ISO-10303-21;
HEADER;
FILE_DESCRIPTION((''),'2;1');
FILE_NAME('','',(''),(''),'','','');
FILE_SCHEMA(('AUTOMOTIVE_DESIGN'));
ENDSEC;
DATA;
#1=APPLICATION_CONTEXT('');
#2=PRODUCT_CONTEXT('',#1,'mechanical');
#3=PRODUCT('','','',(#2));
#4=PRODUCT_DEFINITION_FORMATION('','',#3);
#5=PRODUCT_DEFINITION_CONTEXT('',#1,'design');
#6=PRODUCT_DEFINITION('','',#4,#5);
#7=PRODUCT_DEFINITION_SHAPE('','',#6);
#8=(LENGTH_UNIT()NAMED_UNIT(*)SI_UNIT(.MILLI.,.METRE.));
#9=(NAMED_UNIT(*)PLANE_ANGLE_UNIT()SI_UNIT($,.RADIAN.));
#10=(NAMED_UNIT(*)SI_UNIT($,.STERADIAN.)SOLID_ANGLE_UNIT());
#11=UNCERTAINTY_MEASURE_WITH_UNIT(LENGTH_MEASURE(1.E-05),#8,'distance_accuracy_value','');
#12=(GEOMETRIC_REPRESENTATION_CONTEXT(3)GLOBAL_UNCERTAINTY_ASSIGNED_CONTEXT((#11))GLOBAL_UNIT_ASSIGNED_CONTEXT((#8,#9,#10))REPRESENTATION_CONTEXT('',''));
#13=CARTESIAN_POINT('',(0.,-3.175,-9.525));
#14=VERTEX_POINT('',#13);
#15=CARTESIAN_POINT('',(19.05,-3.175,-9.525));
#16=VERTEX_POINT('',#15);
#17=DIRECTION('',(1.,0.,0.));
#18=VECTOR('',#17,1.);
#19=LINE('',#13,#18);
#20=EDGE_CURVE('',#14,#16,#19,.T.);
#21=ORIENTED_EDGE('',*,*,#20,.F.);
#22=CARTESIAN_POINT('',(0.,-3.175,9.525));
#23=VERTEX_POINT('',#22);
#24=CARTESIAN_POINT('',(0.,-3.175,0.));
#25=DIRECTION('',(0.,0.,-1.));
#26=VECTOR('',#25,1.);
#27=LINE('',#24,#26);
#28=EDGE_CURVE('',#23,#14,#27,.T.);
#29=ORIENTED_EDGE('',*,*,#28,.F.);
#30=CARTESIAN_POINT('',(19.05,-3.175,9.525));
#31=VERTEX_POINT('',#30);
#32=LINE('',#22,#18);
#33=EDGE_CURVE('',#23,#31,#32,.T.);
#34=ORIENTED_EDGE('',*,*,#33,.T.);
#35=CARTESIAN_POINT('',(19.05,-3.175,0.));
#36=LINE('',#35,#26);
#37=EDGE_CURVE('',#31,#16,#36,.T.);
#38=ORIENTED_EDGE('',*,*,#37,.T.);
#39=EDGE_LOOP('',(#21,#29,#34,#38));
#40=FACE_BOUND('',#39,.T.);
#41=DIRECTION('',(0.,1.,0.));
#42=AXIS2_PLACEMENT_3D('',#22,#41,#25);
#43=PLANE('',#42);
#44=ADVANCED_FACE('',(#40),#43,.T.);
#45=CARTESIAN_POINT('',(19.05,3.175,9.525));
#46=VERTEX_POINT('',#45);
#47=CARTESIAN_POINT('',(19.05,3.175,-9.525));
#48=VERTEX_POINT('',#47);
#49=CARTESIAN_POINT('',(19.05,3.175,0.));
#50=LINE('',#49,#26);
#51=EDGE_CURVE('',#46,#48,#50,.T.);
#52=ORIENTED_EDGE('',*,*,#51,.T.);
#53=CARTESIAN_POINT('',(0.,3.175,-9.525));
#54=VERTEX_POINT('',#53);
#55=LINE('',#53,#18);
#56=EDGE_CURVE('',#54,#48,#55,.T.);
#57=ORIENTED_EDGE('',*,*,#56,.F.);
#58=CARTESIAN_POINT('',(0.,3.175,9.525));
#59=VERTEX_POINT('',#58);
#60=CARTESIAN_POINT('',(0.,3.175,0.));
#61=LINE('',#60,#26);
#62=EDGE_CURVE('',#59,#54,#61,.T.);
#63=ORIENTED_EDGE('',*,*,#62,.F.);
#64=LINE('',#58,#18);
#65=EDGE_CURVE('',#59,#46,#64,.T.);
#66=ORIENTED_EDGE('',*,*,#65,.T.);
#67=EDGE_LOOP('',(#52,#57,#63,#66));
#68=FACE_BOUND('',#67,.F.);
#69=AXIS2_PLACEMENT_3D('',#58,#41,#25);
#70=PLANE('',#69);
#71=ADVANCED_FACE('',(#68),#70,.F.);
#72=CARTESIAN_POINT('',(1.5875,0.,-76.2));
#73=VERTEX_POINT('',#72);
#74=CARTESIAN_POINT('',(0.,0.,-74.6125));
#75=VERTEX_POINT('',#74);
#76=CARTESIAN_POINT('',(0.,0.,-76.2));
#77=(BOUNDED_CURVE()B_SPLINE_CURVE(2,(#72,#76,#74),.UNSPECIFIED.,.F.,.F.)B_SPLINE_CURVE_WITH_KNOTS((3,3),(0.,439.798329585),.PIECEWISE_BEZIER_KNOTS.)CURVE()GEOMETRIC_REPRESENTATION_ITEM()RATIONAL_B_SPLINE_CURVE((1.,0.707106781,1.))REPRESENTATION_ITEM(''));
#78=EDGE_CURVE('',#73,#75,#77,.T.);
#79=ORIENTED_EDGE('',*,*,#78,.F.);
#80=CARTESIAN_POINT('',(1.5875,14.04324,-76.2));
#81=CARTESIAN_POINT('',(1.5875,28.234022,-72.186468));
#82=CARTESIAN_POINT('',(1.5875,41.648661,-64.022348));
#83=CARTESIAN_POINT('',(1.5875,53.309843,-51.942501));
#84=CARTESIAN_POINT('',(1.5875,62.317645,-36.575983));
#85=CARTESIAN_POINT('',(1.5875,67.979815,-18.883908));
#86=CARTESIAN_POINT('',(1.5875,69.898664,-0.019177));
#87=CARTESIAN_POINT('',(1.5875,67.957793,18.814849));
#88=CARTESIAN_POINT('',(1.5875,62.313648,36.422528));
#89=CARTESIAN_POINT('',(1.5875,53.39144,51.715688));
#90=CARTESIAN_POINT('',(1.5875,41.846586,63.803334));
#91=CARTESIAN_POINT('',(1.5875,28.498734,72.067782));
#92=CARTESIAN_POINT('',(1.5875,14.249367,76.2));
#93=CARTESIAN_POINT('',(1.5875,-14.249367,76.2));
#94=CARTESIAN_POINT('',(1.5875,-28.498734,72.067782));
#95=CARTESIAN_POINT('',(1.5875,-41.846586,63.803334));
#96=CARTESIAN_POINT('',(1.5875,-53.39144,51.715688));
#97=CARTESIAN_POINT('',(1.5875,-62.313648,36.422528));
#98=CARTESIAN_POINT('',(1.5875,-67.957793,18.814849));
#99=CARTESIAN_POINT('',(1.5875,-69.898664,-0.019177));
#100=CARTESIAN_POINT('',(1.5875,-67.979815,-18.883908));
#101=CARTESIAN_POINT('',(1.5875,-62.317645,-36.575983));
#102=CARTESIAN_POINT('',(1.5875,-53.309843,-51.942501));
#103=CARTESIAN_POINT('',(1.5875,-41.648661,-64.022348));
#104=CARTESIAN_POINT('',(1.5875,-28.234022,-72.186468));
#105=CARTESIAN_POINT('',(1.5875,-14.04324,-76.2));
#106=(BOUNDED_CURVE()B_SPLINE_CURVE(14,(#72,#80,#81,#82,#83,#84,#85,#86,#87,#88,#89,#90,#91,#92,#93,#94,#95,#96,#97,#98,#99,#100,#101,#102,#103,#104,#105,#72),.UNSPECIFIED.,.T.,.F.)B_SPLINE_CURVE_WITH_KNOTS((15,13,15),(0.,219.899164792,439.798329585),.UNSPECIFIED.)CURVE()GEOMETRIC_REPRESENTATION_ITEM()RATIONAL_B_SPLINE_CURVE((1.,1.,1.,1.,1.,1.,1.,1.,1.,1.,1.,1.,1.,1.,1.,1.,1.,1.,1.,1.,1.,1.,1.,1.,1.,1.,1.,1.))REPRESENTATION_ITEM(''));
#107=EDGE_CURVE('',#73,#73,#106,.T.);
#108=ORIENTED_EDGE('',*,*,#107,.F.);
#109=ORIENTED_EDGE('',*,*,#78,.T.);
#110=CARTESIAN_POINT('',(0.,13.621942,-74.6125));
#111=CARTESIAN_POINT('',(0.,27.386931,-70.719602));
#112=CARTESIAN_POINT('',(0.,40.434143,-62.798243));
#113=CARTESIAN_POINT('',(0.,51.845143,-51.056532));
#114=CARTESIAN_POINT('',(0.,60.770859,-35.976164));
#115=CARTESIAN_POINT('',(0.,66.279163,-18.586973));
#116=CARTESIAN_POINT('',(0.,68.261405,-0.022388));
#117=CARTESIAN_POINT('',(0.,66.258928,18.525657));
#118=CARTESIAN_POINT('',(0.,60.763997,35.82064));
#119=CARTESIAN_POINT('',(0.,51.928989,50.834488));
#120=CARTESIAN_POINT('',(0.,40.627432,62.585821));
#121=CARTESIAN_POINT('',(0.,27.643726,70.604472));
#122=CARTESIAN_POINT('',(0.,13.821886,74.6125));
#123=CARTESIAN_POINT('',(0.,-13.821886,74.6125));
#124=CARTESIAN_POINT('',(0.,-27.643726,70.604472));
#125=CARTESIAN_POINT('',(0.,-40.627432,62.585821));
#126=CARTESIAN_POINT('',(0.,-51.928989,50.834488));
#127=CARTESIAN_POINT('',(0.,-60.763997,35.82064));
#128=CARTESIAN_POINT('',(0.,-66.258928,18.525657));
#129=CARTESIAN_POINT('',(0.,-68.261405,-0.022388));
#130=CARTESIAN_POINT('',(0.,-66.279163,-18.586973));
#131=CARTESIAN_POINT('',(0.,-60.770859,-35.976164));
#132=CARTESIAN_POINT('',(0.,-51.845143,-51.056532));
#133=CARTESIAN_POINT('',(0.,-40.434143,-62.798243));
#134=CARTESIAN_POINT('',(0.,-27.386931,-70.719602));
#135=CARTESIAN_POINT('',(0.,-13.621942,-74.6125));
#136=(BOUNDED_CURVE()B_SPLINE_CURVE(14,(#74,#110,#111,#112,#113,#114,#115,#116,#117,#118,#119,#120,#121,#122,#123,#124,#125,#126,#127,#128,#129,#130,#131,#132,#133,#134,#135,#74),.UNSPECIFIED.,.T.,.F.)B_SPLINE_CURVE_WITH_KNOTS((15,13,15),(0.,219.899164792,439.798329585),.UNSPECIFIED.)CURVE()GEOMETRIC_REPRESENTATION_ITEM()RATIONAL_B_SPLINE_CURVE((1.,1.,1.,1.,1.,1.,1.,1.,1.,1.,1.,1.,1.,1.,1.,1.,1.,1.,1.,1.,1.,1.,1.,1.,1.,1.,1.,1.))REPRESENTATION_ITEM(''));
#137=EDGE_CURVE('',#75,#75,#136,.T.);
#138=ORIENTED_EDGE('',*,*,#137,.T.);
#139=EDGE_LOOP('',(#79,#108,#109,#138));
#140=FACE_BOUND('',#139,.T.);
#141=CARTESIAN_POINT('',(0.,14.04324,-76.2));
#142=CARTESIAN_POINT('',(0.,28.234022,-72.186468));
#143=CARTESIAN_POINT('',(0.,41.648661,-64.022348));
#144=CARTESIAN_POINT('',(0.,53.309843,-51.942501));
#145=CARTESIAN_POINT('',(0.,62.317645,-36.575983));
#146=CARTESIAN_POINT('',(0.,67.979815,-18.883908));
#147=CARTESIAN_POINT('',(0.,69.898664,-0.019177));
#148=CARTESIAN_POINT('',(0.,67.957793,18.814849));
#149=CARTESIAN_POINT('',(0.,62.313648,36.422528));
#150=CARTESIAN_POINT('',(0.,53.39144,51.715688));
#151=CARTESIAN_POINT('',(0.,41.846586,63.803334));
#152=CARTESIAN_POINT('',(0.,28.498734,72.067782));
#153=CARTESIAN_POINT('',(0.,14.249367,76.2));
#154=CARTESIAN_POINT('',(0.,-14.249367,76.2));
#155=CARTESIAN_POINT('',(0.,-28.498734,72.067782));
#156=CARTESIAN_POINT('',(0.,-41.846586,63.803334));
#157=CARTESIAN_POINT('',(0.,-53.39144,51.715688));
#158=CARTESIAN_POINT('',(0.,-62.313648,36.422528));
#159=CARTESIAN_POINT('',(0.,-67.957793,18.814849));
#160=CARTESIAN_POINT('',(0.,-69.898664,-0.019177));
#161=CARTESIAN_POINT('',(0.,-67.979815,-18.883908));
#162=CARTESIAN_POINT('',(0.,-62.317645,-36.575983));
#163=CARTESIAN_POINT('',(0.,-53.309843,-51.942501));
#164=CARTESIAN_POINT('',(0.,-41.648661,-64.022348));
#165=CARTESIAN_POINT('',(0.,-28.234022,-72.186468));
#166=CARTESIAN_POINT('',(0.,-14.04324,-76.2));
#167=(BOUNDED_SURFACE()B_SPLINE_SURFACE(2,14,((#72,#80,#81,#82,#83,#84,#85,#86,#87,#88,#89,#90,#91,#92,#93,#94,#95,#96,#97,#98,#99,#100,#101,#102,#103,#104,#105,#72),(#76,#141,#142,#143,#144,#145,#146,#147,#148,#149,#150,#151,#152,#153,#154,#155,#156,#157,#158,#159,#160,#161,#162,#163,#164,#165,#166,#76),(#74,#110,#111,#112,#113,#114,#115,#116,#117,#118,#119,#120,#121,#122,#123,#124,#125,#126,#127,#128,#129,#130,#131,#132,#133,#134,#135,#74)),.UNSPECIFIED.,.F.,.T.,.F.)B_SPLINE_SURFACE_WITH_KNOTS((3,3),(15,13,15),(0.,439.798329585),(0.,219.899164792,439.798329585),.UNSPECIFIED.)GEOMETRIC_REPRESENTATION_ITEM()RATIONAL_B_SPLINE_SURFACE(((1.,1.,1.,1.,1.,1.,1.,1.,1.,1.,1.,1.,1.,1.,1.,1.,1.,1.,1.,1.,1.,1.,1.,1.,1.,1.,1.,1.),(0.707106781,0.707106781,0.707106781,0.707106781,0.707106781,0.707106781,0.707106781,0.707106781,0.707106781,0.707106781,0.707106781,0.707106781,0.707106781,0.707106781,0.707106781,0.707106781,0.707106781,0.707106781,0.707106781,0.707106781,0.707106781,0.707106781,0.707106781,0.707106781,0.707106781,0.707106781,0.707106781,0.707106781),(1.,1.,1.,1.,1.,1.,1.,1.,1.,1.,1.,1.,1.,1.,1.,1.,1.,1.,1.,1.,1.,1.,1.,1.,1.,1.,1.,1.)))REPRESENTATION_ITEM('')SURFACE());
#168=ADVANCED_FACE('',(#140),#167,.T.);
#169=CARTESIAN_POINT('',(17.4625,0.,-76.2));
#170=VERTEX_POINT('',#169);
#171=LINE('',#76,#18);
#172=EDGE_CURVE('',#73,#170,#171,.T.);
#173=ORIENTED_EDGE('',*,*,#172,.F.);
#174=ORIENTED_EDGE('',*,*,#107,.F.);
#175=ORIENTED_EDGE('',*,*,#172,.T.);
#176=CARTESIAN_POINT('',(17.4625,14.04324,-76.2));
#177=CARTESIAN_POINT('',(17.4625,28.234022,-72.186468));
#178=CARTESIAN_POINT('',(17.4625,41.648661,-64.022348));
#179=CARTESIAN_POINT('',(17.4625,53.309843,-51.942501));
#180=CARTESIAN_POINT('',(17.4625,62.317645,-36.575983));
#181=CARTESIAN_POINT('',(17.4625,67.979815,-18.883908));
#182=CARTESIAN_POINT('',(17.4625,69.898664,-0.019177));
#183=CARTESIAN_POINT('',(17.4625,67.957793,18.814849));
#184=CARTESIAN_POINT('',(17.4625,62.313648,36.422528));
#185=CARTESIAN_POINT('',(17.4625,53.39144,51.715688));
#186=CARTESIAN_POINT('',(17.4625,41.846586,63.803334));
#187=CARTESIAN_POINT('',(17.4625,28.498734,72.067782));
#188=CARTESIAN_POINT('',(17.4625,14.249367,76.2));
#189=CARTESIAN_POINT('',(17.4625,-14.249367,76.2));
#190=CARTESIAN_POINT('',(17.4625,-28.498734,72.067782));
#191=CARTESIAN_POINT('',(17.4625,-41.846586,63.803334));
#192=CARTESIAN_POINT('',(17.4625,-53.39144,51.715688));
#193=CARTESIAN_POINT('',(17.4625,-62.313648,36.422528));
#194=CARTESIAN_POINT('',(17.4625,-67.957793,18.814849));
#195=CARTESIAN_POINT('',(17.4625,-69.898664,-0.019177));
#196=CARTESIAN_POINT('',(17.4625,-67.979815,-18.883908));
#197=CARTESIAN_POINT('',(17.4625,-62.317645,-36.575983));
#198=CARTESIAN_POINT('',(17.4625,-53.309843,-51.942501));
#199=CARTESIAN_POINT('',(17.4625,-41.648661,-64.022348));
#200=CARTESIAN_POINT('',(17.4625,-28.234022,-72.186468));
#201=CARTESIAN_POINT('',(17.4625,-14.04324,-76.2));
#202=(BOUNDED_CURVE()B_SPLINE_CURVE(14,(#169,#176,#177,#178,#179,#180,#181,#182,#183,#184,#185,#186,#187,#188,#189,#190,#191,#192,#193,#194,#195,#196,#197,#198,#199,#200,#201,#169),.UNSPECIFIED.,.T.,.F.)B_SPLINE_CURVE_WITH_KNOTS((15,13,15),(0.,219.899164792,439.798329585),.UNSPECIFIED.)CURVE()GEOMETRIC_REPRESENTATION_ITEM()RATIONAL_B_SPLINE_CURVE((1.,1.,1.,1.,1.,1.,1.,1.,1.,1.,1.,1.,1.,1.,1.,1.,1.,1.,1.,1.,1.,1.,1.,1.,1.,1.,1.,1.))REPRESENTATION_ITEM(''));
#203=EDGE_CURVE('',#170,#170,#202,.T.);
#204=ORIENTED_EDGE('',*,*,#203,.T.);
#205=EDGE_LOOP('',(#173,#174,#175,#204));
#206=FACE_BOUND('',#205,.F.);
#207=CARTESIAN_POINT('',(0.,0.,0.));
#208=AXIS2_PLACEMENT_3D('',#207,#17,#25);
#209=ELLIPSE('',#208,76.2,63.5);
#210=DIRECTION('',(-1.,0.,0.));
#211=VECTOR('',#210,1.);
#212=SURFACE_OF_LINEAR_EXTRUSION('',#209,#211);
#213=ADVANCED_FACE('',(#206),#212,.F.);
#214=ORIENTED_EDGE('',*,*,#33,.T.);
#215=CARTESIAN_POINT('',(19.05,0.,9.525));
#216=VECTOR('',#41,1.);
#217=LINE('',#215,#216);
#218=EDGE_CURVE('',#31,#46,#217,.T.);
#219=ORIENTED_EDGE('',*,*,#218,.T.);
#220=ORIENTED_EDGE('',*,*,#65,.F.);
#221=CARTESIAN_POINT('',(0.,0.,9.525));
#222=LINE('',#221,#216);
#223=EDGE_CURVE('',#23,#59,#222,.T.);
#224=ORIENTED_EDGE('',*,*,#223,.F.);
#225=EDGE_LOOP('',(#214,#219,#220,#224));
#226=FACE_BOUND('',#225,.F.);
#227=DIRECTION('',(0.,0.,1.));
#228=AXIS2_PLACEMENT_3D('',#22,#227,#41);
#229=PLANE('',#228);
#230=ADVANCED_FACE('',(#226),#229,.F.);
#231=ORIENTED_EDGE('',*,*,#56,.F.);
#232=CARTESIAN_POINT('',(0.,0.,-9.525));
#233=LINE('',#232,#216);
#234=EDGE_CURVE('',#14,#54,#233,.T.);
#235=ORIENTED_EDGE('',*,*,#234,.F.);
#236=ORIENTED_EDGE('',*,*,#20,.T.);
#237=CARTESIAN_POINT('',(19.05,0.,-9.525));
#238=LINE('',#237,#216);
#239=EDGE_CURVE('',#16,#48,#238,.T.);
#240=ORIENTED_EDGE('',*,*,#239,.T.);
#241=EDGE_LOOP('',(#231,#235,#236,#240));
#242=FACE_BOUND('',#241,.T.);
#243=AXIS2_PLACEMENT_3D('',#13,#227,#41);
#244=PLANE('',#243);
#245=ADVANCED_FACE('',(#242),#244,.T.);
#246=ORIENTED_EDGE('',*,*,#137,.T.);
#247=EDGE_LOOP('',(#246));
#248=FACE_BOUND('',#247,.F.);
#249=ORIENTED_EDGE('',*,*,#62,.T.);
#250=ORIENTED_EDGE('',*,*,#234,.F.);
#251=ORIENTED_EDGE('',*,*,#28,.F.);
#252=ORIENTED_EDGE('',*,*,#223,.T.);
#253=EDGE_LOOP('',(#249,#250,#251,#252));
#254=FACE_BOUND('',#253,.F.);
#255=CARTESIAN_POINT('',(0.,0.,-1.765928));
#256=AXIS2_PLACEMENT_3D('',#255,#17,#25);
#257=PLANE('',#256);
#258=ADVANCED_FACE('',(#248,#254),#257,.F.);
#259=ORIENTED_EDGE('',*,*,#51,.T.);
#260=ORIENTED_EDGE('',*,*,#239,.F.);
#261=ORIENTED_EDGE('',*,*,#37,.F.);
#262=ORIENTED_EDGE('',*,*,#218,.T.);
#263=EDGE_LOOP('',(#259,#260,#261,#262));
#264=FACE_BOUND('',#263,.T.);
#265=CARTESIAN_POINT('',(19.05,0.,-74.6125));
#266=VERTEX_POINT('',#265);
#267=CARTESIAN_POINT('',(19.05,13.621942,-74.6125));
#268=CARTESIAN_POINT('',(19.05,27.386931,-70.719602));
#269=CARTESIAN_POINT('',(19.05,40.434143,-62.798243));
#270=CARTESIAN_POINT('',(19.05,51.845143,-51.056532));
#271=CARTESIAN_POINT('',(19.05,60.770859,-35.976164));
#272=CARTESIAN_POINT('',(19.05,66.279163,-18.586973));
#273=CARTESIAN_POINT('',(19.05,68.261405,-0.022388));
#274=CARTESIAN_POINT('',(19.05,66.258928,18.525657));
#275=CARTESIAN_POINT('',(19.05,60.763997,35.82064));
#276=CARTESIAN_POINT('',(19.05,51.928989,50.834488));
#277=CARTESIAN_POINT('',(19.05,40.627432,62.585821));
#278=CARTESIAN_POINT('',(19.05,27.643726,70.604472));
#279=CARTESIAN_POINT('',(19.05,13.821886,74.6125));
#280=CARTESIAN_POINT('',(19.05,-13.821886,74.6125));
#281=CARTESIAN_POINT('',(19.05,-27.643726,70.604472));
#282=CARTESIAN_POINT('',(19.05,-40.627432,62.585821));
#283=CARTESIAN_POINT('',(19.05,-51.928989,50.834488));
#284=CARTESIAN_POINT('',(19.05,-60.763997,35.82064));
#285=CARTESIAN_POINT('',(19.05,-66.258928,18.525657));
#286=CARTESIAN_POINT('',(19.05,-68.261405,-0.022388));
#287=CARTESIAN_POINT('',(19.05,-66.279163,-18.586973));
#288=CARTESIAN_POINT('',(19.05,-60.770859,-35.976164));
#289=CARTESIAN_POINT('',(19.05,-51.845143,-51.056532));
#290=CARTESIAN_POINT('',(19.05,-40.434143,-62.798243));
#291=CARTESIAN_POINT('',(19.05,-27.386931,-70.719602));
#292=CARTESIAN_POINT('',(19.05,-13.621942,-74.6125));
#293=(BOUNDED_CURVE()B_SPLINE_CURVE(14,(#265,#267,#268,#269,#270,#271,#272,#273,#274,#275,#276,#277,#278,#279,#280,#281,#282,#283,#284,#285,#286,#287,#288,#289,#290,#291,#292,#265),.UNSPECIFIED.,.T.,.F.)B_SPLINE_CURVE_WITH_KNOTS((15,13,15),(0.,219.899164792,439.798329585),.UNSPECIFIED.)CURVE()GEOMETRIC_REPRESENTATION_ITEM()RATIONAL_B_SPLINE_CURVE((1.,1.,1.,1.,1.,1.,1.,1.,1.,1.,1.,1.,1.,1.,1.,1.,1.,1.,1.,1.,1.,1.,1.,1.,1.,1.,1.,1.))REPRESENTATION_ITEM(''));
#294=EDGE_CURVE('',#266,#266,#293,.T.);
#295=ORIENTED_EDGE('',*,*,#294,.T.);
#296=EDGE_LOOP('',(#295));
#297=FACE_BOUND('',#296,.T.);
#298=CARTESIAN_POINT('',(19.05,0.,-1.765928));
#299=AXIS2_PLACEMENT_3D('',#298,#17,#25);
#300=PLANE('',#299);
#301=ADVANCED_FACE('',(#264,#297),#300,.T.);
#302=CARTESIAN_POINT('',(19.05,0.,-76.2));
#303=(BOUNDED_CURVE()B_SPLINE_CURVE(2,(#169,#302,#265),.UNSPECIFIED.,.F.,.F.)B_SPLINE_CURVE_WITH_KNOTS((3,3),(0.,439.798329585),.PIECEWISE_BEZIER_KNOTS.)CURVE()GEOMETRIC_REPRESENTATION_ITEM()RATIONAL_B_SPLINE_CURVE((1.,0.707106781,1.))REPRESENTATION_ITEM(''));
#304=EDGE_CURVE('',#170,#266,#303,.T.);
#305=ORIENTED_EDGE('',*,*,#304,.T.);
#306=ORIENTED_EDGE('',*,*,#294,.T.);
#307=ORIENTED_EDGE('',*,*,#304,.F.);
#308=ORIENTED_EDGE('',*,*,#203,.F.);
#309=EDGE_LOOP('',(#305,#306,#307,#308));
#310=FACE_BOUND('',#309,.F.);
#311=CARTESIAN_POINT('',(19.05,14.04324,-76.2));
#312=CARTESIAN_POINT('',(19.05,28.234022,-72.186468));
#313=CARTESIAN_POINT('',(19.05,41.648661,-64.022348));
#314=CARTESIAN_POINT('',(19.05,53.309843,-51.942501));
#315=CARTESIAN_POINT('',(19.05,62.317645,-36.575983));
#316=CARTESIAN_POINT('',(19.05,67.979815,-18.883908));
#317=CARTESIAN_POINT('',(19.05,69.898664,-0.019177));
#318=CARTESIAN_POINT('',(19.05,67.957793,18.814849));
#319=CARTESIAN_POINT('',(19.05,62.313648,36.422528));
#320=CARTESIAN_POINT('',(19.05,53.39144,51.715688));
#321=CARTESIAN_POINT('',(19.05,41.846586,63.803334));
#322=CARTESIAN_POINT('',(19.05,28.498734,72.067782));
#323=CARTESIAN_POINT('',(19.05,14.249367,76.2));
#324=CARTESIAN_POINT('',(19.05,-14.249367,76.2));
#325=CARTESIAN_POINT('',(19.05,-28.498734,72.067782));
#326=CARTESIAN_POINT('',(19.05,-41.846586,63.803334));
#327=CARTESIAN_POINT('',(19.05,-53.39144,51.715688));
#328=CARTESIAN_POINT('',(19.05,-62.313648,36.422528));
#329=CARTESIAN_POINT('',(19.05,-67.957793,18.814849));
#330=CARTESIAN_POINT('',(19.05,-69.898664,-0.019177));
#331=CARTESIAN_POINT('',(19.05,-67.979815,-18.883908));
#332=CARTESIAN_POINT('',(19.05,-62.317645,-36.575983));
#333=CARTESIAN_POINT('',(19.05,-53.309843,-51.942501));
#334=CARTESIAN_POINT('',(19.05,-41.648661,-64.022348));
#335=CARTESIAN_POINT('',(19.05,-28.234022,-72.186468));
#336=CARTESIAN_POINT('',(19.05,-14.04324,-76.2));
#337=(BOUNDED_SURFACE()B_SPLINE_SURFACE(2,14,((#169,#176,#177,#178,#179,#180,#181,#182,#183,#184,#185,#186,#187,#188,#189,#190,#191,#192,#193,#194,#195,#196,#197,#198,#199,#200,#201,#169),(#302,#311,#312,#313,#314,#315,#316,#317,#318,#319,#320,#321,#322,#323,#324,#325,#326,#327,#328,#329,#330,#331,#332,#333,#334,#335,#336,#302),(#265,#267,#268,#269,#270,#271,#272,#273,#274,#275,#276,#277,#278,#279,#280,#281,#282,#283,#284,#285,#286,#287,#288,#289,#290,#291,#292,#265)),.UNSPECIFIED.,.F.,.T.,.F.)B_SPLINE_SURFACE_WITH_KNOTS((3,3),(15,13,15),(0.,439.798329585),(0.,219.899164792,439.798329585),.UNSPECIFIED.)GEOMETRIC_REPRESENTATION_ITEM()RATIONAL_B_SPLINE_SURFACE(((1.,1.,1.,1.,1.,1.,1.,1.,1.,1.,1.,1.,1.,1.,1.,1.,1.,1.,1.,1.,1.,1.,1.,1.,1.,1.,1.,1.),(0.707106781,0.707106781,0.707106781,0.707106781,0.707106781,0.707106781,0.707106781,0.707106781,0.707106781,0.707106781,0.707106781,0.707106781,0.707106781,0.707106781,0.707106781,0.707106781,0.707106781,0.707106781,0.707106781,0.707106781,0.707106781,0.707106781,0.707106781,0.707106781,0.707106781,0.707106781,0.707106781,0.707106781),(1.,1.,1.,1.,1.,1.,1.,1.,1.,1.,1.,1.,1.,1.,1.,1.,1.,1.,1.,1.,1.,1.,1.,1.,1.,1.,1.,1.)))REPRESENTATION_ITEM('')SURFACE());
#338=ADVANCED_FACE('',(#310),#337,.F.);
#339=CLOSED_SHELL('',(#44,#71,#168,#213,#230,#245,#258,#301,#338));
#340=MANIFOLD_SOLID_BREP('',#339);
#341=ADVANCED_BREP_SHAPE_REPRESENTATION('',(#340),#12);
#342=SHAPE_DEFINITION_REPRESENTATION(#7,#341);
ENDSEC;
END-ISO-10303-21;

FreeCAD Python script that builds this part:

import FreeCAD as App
import Part
import Sketcher
from FreeCAD import Vector
Q = App.Units.Quantity


def edges_at(feature, points):
    """Names of the edges that pass closest to the given points."""
    edges = feature.Shape.Edges
    near = lambda p: min(range(len(edges)), key=lambda i: edges[i].distToShape(Part.Vertex(*p))[0])
    return sorted({f"Edge{near(p) + 1}" for p in points})


def add_polygon(sketch, points):
    """Adds a closed chain of lines whose ends are joined by coincident constraints."""
    first, n = sketch.GeometryCount, len(points)
    for a, b in zip(points, points[1:] + points[:1]):
        sketch.addGeometry(Part.LineSegment(App.Vector(*a, 0), App.Vector(*b, 0)), False)
    for i in range(n):
        sketch.addConstraint(Sketcher.Constraint("Coincident", first + i, 2, first + (i + 1) % n, 1))

doc = App.newDocument("Part")
body = doc.addObject("PartDesign::Body", "Body")

# Sketch on YZ plane
sketch1 = body.newObject("Sketcher::SketchObject", "Sketch")
sketch1.AttachmentSupport = (doc.getObject("YZ_Plane"), [""])
sketch1.MapMode = "FlatFace"
sketch1.addGeometry(Part.Ellipse(Vector(0, -76.2, 0), Vector(63.5, 0, 0), Vector(0, 0, 0)), False)  # 0
add_polygon(sketch1, [(-3.175, -9.525), (-3.175, 9.525), (3.175, 9.525), (3.175, -9.525)])  # lines 1-4
sketch1.addConstraint(Sketcher.Constraint("Block", 0))
sketch1.addConstraint(Sketcher.Constraint("Vertical", 1))
sketch1.addConstraint(Sketcher.Constraint("Horizontal", 2))
sketch1.addConstraint(Sketcher.Constraint("Vertical", 3))
sketch1.addConstraint(Sketcher.Constraint("Horizontal", 4))
sketch1.addConstraint(Sketcher.Constraint("Symmetric", 1, 2, 3, 2, -1, 1))
sketch1.addConstraint(Sketcher.Constraint("DistanceX", 2, 1, 2, 2, Q("0.25 in")))
sketch1.addConstraint(Sketcher.Constraint("DistanceY", 1, 1, 1, 2, Q("0.75 in")))
pad1 = body.newObject("PartDesign::Pad", "Pad")
pad1.Profile = sketch1
pad1.Length = Q("0.75 in")
doc.recompute()

fillet = body.newObject("PartDesign::Fillet", "Fillet")
fillet.Base = (pad1, edges_at(pad1, [(0, -0.005, 76.2), (19.05, -0.005, 76.2)]))
fillet.Radius = Q("0.0625 in")

doc.recompute()
